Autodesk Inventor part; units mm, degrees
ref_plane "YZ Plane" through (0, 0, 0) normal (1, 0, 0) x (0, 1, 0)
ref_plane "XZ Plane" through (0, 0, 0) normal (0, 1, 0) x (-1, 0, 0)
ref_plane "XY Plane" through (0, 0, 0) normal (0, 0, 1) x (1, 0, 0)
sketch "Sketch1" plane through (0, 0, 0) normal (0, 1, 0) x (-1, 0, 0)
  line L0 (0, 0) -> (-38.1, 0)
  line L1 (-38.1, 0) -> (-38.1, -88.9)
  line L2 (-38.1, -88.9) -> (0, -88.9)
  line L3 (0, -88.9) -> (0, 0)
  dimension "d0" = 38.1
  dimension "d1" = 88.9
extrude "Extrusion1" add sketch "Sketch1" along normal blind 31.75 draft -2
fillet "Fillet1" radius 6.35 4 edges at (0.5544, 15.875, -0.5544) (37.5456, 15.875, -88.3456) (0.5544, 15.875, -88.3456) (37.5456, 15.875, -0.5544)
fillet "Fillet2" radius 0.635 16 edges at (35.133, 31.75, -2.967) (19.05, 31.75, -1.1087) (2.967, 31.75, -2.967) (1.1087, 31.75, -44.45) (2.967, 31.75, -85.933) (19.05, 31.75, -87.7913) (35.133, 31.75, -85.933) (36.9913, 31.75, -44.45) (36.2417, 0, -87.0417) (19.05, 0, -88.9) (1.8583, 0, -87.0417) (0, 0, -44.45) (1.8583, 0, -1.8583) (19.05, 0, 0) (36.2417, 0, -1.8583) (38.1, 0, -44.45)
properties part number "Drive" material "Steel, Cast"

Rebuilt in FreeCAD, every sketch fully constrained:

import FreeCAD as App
import Part
import Sketcher
Q = App.Units.Quantity


def edges_at(feature, points):
    """Names of the edges that pass closest to the given points."""
    edges = feature.Shape.Edges
    near = lambda p: min(range(len(edges)), key=lambda i: edges[i].distToShape(Part.Vertex(*p))[0])
    return sorted({f"Edge{near(p) + 1}" for p in points})

doc = App.newDocument("Part")
body = doc.addObject("PartDesign::Body", "Body")

sketch1 = body.newObject("Sketcher::SketchObject", "Sketch")
sketch1.AttachmentSupport = (doc.getObject("XZ_Plane"), [""])
sketch1.MapMode = "FlatFace"
sketch1.addGeometry([
    Part.LineSegment(App.Vector(0, -88.9, 0), App.Vector(0, 0, 0)),
    Part.LineSegment(App.Vector(0, 0, 0), App.Vector(38.1, 0, 0)),
    Part.LineSegment(App.Vector(38.1, 0, 0), App.Vector(38.1, -88.9, 0)),
    Part.LineSegment(App.Vector(38.1, -88.9, 0), App.Vector(0, -88.9, 0)),
], False)
sketch1.addConstraint([
    Sketcher.Constraint("Coincident", 0, 2, 1, 1),
    Sketcher.Constraint("Coincident", 1, 2, 2, 1),
    Sketcher.Constraint("Coincident", 2, 2, 3, 1),
    Sketcher.Constraint("Coincident", 3, 2, 0, 1),
    Sketcher.Constraint("Vertical", 0),
    Sketcher.Constraint("Horizontal", 1),
    Sketcher.Constraint("Vertical", 2),
    Sketcher.Constraint("Horizontal", 3),
    Sketcher.Constraint("Coincident", 0, 2, -1, 1),
    Sketcher.Constraint("DistanceX", 1, 1, 1, 2, Q("1.5 in")),
    Sketcher.Constraint("DistanceY", 0, 1, 0, 2, Q("3.5 in")),
])
pad1 = body.newObject("PartDesign::Pad", "Pad")
pad1.Profile = sketch1
pad1.Length = Q("1.25 in")
pad1.Reversed = True
pad1.TaperAngle = -2
doc.recompute()

fillet = body.newObject("PartDesign::Fillet", "Fillet")
fillet.Base = (pad1, edges_at(pad1, [
    (0.554, 15.875, -0.554),
    (37.546, 15.875, -88.346),
    (0.554, 15.875, -88.346),
    (37.546, 15.875, -0.554),
]))
fillet.Radius = Q("0.25 in")
doc.recompute()

fillet2 = body.newObject("PartDesign::Fillet", "Fillet001")
fillet2.Base = (fillet, edges_at(fillet, [
    (35.133, 31.75, -2.967),
    (19.05, 31.75, -1.109),
    (2.967, 31.75, -2.967),
    (1.109, 31.75, -44.45),
    (2.967, 31.75, -85.933),
    (19.05, 31.75, -87.791),
    (35.133, 31.75, -85.933),
    (36.991, 31.75, -44.45),
    (36.242, 0, -87.042),
    (19.05, 0, -88.9),
    (1.858, 0, -87.042),
    (0, 0, -44.45),
    (1.858, 0, -1.858),
    (19.05, 0, 0),
    (36.242, 0, -1.858),
    (38.1, 0, -44.45),
]))
fillet2.Radius = Q("0.025 in")

doc.recompute()
